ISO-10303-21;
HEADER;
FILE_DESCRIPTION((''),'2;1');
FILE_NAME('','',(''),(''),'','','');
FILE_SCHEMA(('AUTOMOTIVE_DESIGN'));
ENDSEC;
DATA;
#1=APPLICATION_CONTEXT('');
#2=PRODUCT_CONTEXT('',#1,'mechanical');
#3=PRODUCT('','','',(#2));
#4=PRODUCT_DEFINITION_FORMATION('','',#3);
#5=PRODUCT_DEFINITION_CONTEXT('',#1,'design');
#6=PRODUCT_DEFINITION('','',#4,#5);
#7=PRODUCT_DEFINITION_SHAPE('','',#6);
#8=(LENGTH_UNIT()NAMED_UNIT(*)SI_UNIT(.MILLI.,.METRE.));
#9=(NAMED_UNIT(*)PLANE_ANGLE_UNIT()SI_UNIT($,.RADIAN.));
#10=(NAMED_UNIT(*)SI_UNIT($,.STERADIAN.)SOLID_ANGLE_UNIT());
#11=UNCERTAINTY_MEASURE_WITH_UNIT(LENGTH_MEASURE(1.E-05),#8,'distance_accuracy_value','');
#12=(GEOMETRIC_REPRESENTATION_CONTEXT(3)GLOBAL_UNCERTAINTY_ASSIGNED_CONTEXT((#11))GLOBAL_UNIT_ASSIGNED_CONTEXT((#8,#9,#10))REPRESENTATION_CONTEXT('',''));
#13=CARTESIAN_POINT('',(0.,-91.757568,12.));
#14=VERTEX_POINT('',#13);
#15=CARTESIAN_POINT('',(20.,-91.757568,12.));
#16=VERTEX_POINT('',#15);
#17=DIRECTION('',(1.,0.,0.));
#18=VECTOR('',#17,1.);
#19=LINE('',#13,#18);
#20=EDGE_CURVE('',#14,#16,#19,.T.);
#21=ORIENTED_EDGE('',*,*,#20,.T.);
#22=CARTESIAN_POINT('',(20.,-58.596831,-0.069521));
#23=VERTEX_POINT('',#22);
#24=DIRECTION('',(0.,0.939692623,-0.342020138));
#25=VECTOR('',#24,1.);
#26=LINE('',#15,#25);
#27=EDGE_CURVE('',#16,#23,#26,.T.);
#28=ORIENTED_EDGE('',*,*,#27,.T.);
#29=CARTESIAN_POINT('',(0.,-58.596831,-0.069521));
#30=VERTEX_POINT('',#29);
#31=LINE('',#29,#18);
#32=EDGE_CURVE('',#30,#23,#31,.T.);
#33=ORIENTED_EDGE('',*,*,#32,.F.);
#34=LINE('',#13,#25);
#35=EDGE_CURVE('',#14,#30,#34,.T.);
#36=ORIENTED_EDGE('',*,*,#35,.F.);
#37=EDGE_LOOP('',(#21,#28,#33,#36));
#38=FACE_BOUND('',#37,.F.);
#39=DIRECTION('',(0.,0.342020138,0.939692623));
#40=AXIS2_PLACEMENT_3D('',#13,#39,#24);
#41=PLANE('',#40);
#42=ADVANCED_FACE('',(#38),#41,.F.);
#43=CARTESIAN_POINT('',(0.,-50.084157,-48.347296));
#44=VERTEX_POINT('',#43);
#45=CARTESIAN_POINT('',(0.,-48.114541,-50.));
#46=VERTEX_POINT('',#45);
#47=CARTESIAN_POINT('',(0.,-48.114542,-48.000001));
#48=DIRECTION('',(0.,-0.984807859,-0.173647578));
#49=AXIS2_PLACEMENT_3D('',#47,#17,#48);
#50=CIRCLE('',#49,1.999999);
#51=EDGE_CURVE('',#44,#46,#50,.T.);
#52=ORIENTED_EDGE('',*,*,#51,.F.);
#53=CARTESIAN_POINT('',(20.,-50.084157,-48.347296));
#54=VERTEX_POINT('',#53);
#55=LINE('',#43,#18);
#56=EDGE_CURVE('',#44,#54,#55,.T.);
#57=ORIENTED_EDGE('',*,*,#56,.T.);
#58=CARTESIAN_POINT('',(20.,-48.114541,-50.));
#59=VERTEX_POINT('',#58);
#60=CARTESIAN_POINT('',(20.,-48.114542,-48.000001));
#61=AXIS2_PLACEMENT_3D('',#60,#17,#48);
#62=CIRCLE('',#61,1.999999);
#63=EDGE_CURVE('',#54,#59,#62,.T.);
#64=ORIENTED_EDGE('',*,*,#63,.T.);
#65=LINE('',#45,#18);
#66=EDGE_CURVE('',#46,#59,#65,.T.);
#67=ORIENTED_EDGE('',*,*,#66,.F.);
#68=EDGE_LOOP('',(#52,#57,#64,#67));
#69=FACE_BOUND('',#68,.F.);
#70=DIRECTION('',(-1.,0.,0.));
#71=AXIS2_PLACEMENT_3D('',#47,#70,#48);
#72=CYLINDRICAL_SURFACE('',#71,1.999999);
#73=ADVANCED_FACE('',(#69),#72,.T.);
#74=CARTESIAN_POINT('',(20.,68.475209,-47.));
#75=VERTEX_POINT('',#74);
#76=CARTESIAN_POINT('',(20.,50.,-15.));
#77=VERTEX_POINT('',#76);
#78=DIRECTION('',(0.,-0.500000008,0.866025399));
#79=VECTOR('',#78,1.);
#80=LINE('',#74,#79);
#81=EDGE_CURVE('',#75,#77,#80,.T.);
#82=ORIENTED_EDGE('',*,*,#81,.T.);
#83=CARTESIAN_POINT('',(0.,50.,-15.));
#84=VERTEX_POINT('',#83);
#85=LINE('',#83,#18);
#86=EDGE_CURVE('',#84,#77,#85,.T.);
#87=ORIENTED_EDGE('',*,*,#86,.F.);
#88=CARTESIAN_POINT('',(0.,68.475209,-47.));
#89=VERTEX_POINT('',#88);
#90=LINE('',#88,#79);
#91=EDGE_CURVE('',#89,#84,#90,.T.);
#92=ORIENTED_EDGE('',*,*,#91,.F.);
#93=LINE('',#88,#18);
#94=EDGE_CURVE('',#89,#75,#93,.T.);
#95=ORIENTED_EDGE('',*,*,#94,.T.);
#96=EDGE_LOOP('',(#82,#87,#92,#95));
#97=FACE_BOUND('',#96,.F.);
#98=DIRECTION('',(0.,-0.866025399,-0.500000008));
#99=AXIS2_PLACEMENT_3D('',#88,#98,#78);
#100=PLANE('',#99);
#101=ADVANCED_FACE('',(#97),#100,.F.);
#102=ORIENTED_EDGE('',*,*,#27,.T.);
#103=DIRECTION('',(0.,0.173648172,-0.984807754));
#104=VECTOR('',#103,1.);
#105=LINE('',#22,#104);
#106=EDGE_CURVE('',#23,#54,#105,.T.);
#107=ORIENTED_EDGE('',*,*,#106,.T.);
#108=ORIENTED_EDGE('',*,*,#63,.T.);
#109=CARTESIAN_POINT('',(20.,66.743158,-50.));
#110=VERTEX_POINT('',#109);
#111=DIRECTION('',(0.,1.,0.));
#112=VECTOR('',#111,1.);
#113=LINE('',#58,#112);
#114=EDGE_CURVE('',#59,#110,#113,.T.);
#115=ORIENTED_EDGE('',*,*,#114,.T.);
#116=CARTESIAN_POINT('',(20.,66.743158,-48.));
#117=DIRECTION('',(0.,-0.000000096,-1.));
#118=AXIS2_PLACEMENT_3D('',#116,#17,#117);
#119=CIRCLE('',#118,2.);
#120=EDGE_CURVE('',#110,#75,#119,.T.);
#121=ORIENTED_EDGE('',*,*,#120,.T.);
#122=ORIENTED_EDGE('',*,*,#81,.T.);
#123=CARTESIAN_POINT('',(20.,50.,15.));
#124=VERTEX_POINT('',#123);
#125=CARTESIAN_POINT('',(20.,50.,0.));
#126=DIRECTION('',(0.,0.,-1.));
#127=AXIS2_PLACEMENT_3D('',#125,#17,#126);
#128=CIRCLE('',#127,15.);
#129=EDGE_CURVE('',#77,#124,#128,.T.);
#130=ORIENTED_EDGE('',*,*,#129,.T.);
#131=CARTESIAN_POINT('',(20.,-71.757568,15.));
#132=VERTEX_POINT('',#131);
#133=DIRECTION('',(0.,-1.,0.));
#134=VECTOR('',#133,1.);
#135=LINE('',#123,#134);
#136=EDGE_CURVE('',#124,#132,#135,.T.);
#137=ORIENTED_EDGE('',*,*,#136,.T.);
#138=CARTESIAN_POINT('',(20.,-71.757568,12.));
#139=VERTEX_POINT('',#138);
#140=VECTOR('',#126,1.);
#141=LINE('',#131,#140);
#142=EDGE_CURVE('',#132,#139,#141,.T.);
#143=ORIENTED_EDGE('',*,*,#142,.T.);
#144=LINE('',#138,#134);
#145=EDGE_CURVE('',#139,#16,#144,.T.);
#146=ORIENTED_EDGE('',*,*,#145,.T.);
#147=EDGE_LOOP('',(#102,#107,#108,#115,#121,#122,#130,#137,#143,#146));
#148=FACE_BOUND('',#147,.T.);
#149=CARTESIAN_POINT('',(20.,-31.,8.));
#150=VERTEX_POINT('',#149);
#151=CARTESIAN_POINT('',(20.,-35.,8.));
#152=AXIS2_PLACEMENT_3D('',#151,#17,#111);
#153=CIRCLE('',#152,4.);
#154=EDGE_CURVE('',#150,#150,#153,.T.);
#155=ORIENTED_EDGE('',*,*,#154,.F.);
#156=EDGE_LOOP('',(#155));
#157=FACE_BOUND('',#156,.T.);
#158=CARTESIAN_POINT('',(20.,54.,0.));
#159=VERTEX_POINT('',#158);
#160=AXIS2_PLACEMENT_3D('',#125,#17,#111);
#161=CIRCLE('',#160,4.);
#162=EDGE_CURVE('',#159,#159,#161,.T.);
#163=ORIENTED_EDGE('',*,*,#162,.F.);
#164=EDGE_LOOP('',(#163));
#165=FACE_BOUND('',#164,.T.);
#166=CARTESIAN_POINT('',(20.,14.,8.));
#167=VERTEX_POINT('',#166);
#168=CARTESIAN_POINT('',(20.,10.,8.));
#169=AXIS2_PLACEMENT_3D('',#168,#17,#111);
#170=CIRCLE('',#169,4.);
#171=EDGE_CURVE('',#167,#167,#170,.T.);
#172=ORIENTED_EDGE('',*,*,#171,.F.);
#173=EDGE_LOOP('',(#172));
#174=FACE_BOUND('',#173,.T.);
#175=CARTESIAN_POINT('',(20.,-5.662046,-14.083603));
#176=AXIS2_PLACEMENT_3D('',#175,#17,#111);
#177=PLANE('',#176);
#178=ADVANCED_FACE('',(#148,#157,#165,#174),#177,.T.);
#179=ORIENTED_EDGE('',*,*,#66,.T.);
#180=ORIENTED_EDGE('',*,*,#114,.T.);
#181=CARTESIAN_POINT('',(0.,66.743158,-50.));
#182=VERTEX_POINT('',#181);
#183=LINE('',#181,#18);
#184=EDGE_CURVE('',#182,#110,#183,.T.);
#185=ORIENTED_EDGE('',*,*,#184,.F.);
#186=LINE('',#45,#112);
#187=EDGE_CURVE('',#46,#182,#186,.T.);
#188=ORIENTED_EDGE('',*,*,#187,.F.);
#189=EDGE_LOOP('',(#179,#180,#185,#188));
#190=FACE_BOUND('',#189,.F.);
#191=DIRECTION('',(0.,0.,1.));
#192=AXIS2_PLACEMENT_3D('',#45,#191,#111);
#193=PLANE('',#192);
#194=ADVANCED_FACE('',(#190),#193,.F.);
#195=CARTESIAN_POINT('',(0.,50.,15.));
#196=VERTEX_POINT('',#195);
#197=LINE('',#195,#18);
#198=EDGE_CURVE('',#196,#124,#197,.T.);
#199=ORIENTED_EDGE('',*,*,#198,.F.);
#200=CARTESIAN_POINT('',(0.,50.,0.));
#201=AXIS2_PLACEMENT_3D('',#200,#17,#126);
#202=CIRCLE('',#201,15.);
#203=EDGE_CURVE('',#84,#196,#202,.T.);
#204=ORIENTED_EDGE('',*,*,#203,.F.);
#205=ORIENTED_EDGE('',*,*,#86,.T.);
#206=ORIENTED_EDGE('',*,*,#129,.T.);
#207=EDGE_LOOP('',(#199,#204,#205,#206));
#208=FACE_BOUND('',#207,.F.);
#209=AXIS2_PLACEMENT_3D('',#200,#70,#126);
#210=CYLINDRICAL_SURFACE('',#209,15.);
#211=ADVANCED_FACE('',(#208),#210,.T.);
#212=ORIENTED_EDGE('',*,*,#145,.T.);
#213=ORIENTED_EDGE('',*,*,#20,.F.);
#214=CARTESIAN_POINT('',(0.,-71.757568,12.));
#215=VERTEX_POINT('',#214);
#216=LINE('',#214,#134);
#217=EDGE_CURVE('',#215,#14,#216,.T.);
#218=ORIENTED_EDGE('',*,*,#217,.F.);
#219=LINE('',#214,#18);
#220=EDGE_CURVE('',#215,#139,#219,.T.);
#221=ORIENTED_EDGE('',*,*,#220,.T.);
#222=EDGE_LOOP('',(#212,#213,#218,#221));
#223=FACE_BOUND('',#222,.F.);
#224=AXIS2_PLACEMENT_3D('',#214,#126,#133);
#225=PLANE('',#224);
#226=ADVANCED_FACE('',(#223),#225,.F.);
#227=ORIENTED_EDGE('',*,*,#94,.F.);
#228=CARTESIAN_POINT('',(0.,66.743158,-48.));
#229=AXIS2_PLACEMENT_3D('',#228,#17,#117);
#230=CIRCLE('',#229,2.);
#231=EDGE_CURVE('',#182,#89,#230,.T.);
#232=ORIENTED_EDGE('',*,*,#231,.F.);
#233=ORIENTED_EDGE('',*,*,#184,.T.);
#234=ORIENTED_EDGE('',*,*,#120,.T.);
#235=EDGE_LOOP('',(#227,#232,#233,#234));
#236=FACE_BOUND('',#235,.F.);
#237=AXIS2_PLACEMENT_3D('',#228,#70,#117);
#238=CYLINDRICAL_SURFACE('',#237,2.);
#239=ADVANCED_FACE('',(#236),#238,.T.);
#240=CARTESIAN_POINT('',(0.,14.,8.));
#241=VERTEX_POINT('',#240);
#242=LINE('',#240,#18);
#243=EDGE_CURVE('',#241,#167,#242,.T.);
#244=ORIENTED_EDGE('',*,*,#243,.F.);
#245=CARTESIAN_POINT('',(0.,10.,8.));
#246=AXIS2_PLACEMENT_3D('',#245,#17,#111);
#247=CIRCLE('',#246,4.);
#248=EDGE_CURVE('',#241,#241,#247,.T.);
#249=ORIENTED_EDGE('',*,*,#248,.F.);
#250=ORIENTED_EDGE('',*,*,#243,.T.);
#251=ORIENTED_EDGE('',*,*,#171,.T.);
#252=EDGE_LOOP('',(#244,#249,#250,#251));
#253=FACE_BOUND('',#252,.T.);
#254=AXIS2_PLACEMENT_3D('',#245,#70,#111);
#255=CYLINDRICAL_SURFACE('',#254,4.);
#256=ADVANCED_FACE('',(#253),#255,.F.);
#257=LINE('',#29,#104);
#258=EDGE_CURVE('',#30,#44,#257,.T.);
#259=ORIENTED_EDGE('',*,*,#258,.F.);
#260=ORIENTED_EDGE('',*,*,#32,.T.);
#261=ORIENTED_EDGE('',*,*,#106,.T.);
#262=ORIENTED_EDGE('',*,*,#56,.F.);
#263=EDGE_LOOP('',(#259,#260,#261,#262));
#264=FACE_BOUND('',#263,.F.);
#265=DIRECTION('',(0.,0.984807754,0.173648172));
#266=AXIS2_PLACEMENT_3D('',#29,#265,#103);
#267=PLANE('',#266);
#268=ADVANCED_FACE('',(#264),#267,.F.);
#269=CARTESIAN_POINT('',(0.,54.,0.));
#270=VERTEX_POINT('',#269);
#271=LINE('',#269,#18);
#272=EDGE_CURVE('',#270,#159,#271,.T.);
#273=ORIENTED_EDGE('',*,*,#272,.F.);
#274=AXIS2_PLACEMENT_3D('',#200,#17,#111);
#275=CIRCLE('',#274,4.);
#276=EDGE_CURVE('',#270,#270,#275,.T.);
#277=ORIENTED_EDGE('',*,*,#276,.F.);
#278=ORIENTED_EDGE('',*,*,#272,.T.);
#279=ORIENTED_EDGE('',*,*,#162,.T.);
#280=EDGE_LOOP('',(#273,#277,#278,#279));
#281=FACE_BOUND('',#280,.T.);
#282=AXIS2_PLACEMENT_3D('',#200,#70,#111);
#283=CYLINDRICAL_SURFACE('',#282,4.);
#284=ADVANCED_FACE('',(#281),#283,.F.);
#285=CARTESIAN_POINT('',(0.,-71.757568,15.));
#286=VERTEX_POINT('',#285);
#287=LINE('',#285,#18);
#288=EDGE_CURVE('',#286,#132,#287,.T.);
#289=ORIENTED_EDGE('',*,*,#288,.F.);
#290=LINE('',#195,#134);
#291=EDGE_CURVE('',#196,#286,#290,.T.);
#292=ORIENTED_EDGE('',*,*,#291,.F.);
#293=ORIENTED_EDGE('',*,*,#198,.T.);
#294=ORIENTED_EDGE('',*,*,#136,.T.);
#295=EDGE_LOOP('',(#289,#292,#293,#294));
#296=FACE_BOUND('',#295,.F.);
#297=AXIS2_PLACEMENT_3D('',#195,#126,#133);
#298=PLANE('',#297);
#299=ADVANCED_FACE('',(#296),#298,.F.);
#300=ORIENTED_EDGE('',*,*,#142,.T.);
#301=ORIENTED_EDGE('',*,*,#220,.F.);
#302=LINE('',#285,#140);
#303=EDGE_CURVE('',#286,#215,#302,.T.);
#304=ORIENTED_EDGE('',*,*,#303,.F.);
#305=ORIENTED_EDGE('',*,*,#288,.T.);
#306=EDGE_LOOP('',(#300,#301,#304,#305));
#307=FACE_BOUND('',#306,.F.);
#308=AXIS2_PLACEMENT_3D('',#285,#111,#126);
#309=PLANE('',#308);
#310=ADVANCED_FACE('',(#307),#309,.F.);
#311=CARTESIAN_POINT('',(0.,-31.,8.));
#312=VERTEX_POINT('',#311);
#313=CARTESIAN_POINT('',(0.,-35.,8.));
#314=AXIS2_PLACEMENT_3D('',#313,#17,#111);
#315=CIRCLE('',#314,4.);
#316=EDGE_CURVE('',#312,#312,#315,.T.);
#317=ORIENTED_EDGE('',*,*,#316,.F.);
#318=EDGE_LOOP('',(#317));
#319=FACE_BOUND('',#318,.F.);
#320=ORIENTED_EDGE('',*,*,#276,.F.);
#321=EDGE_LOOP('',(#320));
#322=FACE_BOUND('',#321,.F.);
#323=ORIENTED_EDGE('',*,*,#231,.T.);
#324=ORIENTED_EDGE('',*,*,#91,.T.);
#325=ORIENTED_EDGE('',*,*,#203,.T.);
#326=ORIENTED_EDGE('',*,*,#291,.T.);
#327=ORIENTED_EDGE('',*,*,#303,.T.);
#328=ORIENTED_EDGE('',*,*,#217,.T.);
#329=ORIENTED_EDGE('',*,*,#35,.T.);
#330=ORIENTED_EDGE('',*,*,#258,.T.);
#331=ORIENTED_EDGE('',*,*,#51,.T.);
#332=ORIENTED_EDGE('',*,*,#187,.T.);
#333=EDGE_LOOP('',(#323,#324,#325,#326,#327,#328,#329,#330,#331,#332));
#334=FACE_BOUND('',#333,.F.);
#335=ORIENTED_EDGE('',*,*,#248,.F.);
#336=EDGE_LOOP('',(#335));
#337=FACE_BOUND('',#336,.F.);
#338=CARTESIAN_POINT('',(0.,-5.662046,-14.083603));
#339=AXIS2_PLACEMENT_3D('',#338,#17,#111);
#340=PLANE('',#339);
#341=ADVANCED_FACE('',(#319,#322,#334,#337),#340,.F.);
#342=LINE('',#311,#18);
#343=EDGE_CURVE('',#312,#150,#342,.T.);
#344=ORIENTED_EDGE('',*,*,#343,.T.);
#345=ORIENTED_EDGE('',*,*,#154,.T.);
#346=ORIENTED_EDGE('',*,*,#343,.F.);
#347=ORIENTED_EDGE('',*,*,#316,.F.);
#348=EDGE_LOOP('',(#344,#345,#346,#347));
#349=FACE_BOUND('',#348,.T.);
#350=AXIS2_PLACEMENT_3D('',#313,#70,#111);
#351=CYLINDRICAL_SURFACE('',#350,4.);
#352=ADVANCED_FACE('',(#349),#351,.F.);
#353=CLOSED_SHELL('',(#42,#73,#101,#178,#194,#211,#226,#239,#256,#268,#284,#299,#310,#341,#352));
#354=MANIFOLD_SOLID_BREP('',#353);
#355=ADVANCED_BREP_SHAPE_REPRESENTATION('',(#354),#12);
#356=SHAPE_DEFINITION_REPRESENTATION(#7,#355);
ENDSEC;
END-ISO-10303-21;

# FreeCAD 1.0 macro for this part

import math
import FreeCAD as App
import Part
import Sketcher
from FreeCAD import Vector
Q = App.Units.Quantity

doc = App.newDocument("Part")
body = doc.addObject("PartDesign::Body", "Body")

# Sketch on YZ plane
sketch1 = body.newObject("Sketcher::SketchObject", "Sketch")
sketch1.AttachmentSupport = (doc.getObject("YZ_Plane"), [""])
sketch1.MapMode = "FlatFace"
sketch1.addGeometry([
    Part.LineSegment(Vector(50, 15, 0), Vector(-71.757568, 15, 0)),  # 0
    Part.LineSegment(Vector(-71.757568, 15, 0), Vector(-71.757568, 12, 0)),  # 1
    Part.LineSegment(Vector(-71.757568, 12, 0), Vector(-91.757568, 12, 0)),  # 2
    Part.LineSegment(Vector(-91.757568, 12, 0), Vector(-58.596831, -0.069521, 0)),  # 3
    Part.LineSegment(Vector(-58.596831, -0.069521, 0), Vector(-50.084157, -48.347296, 0)),  # 4
    Part.ArcOfCircle(Part.Circle(Vector(-48.114542, -48.000001, 0), Vector(0, 0, 1), 1.999999), math.radians(-170.000035), math.radians(-89.999963)),  # 5
    Part.LineSegment(Vector(-48.114541, -50, 0), Vector(66.743158, -50, 0)),  # 6
    Part.ArcOfCircle(Part.Circle(Vector(66.743158, -48, 0), Vector(0, 0, 1), 2), math.radians(-90.000006), math.radians(30)),  # 7
    Part.LineSegment(Vector(68.475209, -47, 0), Vector(50, -15, 0)),  # 8
    Part.ArcOfCircle(Part.Circle(Vector(50, 0, 0), Vector(0, 0, 1), 15), math.radians(-90), math.radians(90)),  # 9
    Part.Circle(Vector(50, 0, 0), Vector(0, 0, 1), 4),  # 10
    Part.Circle(Vector(-35, 8, 0), Vector(0, 0, 1), 4),  # 11
    Part.Circle(Vector(10, 8, 0), Vector(0, 0, 1), 4),  # 12
], False)
sketch1.addConstraint([
    Sketcher.Constraint("Coincident", 0, 2, 1, 1),
    Sketcher.Constraint("Coincident", 1, 2, 2, 1),
    Sketcher.Constraint("Coincident", 2, 2, 3, 1),
    Sketcher.Constraint("Coincident", 3, 2, 4, 1),
    Sketcher.Constraint("Tangent", 4, 2, 5, 1),
    Sketcher.Constraint("Tangent", 5, 2, 6, 1),
    Sketcher.Constraint("Tangent", 6, 2, 7, 1),
    Sketcher.Constraint("Tangent", 7, 2, 8, 1),
    Sketcher.Constraint("Coincident", 8, 2, 9, 1),
    Sketcher.Constraint("Tangent", 9, 2, 0, 1),
    Sketcher.Constraint("Horizontal", 0),
    Sketcher.Constraint("Vertical", 1),
    Sketcher.Constraint("Horizontal", 2),
    Sketcher.Constraint("Horizontal", 6),
    Sketcher.Constraint("Coincident", 10, 3, 9, 3),
    Sketcher.Constraint("Equal", 5, 7),
    Sketcher.Constraint("Equal", 10, 11),
    Sketcher.Constraint("Equal", 11, 12),
    Sketcher.Constraint("Symmetric", 8, 2, 9, 2, -1),
    Sketcher.Constraint("Horizontal", 11, 3, 12, 3),
    Sketcher.Constraint("Diameter", 10, 8.0),
    Sketcher.Constraint("Radius", 5, 1.999999),
    Sketcher.Constraint("Radius", 9, 15.0),
    Sketcher.Constraint("DistanceX", 2, 2, 2, 1, 20.0),
    Sketcher.Constraint("DistanceY", 1, 2, 1, 1, 3.0),
    Sketcher.Constraint("Angle", 3, Q("-20 deg")),
    Sketcher.Constraint("Angle", 4, Q("-80 deg")),
    Sketcher.Constraint("Angle", 8, Q("120.000001 deg")),
    Sketcher.Constraint("DistanceY", 5, 3, -1, 1, 48.000001),
    Sketcher.Constraint("DistanceX", -1, 1, 9, 3, 50.0),
    Sketcher.Constraint("DistanceX", 11, 3, -1, 1, 35.0),
    Sketcher.Constraint("DistanceY", -1, 1, 11, 3, 8.0),
    Sketcher.Constraint("DistanceX", -1, 1, 12, 3, 10.0),
    Sketcher.Constraint("DistanceX", 6, 1, 6, 2, 114.857699),
    Sketcher.Constraint("DistanceX", 0, 2, 0, 1, 121.757568),
])
pad1 = body.newObject("PartDesign::Pad", "Pad")
pad1.Profile = sketch1
pad1.Length = 20

doc.recompute()
